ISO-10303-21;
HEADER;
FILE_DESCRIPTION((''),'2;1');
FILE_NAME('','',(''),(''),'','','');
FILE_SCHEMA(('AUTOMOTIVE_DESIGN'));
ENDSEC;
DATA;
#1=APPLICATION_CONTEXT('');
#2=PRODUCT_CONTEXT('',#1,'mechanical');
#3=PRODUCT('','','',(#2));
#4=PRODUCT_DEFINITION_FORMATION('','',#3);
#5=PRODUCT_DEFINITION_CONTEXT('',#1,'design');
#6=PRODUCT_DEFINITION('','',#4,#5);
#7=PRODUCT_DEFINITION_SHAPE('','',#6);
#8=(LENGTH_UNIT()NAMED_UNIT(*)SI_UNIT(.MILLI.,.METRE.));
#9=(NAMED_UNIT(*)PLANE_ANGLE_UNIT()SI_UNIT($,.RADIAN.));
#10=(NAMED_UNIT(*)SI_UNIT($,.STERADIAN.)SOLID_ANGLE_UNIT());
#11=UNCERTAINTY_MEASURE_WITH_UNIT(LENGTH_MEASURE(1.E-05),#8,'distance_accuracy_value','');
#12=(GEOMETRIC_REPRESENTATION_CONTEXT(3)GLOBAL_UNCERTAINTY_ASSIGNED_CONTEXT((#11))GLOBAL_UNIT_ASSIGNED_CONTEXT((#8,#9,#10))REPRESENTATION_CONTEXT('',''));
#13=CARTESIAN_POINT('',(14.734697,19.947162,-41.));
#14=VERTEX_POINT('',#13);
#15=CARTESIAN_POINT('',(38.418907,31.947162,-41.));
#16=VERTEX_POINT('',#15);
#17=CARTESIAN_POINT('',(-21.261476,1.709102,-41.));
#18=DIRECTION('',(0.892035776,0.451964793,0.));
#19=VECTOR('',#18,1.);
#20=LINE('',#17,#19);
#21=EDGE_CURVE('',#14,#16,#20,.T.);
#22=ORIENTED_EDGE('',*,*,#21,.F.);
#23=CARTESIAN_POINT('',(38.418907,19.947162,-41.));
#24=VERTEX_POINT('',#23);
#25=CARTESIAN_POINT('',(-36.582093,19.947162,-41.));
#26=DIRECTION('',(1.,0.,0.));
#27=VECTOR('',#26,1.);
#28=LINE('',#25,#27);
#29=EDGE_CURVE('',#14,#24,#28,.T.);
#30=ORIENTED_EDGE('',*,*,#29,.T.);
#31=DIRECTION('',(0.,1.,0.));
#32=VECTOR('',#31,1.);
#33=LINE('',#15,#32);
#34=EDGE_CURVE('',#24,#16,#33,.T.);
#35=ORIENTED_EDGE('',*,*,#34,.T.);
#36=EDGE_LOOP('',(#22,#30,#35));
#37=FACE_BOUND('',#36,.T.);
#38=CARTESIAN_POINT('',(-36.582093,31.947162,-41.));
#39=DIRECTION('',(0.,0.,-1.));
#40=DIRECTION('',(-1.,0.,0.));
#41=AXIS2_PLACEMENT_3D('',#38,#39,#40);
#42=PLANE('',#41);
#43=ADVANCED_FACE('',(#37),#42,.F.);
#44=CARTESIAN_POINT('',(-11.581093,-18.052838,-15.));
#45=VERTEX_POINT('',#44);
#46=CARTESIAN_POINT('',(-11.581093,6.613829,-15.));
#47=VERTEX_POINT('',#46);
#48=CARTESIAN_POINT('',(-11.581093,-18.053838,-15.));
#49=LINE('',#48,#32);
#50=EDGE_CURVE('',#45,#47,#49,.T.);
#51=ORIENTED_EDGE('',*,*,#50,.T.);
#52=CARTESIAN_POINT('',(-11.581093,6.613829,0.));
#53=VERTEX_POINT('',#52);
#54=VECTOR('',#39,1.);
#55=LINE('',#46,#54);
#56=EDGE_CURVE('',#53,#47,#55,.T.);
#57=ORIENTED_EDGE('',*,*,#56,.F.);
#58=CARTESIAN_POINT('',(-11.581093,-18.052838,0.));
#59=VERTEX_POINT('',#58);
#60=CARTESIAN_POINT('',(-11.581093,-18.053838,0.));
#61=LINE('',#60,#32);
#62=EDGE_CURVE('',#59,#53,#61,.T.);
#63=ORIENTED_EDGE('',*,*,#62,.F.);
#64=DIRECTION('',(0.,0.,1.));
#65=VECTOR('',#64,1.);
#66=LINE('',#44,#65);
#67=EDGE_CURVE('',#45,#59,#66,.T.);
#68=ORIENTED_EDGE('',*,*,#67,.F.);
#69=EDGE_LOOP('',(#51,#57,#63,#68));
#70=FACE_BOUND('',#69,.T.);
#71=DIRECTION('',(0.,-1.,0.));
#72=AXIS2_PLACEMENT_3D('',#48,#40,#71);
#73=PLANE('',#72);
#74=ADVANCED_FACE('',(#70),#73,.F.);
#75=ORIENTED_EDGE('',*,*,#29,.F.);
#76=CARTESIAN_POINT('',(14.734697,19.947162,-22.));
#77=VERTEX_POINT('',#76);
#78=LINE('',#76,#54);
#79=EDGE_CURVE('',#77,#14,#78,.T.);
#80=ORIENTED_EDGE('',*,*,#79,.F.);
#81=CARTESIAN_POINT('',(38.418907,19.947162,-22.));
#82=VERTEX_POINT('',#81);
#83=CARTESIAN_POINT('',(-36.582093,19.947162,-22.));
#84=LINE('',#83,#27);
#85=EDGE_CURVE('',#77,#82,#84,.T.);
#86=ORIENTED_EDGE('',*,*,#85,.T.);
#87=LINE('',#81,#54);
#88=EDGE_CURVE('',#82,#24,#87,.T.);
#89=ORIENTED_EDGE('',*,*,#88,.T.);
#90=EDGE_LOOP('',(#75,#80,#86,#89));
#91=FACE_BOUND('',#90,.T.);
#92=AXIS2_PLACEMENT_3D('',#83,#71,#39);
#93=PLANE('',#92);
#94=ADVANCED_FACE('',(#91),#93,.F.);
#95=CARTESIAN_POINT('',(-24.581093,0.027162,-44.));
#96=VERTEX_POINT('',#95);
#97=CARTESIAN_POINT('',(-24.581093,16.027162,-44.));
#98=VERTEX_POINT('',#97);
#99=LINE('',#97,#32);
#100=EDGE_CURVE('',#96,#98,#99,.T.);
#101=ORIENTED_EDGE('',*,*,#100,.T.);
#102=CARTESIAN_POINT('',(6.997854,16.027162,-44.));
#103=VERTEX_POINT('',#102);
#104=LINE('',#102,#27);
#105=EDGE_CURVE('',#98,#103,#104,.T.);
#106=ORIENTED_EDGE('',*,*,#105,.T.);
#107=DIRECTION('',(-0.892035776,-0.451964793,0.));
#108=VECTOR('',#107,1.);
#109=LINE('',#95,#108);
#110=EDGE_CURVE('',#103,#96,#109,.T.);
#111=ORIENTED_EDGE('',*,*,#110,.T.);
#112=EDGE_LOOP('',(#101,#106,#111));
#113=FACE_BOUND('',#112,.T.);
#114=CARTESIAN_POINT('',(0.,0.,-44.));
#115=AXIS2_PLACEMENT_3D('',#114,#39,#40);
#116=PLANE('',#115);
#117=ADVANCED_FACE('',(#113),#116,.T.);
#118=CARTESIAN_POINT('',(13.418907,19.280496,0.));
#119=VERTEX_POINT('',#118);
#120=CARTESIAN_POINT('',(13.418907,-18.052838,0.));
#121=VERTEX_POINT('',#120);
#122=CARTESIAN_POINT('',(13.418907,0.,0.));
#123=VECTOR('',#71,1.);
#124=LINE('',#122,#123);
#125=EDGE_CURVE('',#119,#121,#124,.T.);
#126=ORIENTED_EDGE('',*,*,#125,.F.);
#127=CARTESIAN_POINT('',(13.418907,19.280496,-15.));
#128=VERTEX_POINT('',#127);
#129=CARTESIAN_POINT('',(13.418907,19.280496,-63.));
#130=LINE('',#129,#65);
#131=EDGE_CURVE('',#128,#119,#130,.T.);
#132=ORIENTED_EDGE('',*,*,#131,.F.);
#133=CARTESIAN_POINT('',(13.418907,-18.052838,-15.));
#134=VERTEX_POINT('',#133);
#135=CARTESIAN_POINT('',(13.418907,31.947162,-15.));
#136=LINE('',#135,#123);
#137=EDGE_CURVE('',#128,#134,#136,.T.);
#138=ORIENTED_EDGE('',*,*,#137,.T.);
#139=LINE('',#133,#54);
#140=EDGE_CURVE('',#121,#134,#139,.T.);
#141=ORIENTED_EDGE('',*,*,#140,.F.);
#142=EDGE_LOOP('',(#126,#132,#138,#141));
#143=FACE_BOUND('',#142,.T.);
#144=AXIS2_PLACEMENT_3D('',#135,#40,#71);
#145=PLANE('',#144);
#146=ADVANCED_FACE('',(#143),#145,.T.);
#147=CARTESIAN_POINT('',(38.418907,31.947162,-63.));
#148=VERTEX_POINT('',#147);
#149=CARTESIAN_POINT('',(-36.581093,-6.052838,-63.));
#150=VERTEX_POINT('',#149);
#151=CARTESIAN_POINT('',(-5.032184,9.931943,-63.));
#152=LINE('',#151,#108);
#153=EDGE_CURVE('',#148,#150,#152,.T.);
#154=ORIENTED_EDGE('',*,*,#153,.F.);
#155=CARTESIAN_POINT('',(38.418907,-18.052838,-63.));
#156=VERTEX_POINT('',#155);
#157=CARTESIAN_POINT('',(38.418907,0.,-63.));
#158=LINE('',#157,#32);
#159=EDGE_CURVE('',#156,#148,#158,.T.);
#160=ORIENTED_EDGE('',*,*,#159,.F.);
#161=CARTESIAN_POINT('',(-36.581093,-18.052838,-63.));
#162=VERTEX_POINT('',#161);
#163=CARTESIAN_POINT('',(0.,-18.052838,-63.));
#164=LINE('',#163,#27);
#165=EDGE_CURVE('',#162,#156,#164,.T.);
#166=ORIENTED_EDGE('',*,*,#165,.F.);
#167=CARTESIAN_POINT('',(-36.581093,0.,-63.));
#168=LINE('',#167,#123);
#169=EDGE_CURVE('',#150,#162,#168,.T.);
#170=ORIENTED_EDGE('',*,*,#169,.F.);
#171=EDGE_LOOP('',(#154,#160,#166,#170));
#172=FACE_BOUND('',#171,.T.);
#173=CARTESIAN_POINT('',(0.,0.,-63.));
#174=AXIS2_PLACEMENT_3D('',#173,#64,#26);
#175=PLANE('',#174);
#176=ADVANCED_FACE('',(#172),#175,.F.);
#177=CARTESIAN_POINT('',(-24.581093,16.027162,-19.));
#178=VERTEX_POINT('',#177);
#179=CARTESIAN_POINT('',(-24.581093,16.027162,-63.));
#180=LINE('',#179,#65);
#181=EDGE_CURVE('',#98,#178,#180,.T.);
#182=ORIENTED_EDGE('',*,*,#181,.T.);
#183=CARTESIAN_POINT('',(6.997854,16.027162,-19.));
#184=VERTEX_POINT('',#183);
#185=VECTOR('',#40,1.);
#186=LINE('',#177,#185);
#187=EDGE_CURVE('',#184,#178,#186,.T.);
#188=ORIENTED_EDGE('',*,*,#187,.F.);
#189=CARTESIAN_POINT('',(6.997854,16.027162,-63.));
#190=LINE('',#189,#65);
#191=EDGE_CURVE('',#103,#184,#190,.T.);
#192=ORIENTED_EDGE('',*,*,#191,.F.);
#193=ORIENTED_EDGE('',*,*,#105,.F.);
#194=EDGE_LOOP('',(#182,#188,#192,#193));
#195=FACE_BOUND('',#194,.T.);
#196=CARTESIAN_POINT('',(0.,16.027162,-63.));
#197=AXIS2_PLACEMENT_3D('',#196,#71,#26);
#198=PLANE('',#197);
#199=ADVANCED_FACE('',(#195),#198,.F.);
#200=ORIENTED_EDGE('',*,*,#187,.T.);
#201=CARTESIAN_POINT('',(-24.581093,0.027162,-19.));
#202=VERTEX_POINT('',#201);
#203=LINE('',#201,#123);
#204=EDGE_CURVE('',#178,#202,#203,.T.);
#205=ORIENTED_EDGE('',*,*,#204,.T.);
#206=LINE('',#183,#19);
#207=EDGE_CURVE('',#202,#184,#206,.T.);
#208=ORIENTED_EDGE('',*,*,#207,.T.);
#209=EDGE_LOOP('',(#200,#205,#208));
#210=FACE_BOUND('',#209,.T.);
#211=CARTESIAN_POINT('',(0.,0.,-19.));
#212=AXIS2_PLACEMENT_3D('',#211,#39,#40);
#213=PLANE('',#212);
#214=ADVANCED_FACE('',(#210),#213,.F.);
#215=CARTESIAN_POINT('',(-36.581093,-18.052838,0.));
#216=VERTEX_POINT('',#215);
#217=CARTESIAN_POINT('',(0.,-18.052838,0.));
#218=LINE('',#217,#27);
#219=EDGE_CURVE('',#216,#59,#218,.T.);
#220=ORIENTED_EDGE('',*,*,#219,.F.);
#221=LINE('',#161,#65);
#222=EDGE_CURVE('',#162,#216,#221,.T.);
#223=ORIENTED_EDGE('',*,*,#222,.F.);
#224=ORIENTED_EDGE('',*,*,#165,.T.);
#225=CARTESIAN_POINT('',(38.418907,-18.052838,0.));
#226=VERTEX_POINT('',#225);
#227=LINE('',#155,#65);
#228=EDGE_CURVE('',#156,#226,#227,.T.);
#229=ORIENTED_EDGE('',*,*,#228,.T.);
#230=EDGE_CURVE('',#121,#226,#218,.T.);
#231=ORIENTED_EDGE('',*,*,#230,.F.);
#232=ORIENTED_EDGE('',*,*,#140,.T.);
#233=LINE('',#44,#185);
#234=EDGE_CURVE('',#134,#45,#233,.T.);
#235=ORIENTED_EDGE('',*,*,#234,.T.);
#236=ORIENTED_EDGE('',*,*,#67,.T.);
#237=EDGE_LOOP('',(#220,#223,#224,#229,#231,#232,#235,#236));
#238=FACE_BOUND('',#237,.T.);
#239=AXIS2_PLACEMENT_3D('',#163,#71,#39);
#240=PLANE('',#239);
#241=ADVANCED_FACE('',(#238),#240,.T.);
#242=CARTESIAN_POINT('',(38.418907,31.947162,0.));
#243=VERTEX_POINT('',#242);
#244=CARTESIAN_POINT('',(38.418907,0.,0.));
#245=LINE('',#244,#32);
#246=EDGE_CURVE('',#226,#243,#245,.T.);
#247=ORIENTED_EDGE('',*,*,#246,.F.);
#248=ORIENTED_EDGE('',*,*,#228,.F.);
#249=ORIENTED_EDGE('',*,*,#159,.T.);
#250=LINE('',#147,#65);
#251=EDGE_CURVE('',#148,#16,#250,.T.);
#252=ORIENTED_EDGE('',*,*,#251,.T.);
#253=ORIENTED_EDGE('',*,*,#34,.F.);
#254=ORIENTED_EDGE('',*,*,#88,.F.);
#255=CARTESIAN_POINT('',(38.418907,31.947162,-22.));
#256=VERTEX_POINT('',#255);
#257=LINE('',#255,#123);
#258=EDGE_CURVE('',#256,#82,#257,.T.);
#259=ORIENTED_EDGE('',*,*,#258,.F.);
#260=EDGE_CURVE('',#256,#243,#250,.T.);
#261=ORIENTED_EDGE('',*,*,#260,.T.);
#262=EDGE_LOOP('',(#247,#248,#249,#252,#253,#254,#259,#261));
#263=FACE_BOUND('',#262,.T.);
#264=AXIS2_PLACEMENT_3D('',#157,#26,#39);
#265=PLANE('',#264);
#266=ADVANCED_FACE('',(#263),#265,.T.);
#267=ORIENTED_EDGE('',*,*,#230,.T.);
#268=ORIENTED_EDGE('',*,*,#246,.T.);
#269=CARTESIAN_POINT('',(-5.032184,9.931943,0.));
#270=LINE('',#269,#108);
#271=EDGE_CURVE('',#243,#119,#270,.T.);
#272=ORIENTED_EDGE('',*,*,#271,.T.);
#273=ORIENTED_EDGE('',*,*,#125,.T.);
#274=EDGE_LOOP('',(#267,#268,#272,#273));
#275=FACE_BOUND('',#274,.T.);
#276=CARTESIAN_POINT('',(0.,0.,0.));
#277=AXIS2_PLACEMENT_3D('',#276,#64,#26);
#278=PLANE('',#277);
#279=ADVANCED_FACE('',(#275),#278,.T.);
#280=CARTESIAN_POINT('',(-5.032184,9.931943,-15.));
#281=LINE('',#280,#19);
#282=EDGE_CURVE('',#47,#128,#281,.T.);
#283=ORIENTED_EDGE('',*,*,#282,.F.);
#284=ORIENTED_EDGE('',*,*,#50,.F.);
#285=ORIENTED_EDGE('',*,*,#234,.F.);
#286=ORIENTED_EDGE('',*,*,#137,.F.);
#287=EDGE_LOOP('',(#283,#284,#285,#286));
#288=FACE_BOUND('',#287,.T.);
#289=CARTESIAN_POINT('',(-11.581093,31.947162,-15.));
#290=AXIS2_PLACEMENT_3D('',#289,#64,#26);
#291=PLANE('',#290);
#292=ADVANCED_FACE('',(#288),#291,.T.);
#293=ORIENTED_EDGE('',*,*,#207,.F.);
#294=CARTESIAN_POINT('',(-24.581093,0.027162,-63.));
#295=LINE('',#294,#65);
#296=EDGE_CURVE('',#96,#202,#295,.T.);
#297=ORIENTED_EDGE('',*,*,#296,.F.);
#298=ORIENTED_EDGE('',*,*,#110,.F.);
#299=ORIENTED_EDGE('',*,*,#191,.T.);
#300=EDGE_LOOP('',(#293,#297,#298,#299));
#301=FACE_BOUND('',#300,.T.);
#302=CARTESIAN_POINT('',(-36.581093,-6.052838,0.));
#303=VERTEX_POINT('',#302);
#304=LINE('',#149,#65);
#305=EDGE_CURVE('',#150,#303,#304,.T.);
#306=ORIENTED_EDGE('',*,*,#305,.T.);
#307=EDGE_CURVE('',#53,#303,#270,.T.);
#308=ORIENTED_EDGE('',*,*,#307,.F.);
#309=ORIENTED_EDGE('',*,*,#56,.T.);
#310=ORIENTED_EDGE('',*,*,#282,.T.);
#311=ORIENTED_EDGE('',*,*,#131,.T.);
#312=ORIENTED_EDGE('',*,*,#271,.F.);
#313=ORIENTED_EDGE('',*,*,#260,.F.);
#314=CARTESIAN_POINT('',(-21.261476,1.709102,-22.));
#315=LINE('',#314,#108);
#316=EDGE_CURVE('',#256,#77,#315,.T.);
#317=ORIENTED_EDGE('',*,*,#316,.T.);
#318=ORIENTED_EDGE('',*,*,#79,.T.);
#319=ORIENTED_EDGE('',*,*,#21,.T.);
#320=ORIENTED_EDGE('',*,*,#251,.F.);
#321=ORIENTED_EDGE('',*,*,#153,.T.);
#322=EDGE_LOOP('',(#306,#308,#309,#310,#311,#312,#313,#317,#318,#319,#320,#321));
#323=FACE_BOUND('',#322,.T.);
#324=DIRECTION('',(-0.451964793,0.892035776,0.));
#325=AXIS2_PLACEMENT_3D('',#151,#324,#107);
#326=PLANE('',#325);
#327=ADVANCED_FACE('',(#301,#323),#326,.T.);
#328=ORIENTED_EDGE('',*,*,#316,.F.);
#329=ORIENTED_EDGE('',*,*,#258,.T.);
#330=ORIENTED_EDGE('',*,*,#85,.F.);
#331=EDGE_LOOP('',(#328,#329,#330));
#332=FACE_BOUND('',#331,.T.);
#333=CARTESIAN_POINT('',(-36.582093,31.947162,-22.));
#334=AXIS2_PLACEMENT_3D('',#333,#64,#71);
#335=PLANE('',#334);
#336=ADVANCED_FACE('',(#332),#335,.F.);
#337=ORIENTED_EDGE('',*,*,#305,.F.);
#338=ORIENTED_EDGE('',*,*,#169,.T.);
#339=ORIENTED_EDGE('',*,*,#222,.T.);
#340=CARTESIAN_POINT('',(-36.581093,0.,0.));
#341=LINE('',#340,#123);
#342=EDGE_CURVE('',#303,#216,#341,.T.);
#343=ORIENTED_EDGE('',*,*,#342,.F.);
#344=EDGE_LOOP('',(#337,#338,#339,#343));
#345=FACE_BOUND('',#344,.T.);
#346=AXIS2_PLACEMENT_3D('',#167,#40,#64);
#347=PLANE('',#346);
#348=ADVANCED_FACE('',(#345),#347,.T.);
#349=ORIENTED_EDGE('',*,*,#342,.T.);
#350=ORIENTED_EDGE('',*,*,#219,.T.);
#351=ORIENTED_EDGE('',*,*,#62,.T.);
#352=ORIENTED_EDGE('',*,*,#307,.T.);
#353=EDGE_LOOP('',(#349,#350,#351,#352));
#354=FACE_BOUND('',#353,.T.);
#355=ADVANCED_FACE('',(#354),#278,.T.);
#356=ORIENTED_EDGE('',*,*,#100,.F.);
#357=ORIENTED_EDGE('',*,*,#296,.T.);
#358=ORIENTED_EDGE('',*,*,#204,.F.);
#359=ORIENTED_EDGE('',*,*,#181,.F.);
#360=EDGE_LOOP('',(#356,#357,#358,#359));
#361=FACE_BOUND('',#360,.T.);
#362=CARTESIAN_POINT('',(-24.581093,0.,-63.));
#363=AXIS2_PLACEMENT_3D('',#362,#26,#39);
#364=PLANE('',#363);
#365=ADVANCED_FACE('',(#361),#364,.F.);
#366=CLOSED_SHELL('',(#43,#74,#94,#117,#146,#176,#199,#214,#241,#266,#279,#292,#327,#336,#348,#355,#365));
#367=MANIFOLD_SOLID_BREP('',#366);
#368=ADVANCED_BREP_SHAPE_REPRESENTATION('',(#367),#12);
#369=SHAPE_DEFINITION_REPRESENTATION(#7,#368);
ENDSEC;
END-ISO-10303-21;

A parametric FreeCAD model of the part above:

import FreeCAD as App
import Part
import Sketcher
from FreeCAD import Vector
Q = App.Units.Quantity


def add_polygon(sketch, points):
    """Adds a closed chain of lines whose ends are joined by coincident constraints."""
    first, n = sketch.GeometryCount, len(points)
    for a, b in zip(points, points[1:] + points[:1]):
        sketch.addGeometry(Part.LineSegment(App.Vector(*a, 0), App.Vector(*b, 0)), False)
    for i in range(n):
        sketch.addConstraint(Sketcher.Constraint("Coincident", first + i, 2, first + (i + 1) % n, 1))

doc = App.newDocument("Part")
params = doc.addObject("Spreadsheet::Sheet", "Params")
for row, (alias, value) in enumerate([
    ("sketch1_width", "75 mm"),
    ("sketch1_height", "16 mm"),
    ("sketch1_height2", "12 mm"),
    ("sketch1_height3", "50 mm"),
    ("pad1_length", "63 mm"),
    ("sketch2_height", "16 mm"),
    ("pocket1_length", "19 mm"),
    ("sketch3_height", "16 mm"),
    ("pocket2_length", "19 mm"),
    ("sketch4_width", "25 mm"),
    ("sketch4_height", "15 mm"),
    ("pocket3_length", "34.08 mm"),
    ("sketch5_width", "25 mm"),
    ("sketch5_height", "15 mm"),
    ("pocket4_length", "16.92 mm"),
    ("sketch6_width", "12 mm"),
    ("sketch6_height", "19 mm"),
], start=1):
    params.set(f"A{row}", alias)
    params.set(f"B{row}", "=" + value)
    params.setAlias(f"B{row}", alias)

body = doc.addObject("PartDesign::Body", "Body")

sketch1 = body.newObject("Sketcher::SketchObject", "Sketch")
sketch1.AttachmentSupport = (doc.getObject("XY_Plane"), [""])
sketch1.MapMode = "FlatFace"
add_polygon(sketch1, [(38, 32), (7, 16), (-25, 16), (-25, 0), (-37, -6), (-37, -18), (38, -18)])
sketch1.addConstraint(Sketcher.Constraint("Horizontal", 1))
sketch1.addConstraint(Sketcher.Constraint("Vertical", 2))
sketch1.addConstraint(Sketcher.Constraint("Vertical", 4))
sketch1.addConstraint(Sketcher.Constraint("Horizontal", 5))
sketch1.addConstraint(Sketcher.Constraint("Vertical", 6))
sketch1.addConstraint(Sketcher.Constraint("Parallel", 0, 3))
sketch1.addConstraint(Sketcher.Constraint("DistanceX", 5, 1, 5, 2, Q("75 mm")))
sketch1.addConstraint(Sketcher.Constraint("DistanceY", 2, 2, 2, 1, Q("16 mm")))
sketch1.addConstraint(Sketcher.Constraint("DistanceY", 4, 2, 4, 1, Q("12 mm")))
sketch1.addConstraint(Sketcher.Constraint("DistanceY", 6, 1, 6, 2, Q("50 mm")))
sketch1.addConstraint(Sketcher.Constraint("DistanceX", 3, 2, 2, 2, Q("12 mm")))
sketch1.addConstraint(Sketcher.Constraint("DistanceY", 3, 2, 2, 2, Q("6.08 mm")))
sketch1.addConstraint(Sketcher.Constraint("DistanceX", -1, 1, 0, 2, Q("6.997854 mm")))
sketch1.addConstraint(Sketcher.Constraint("DistanceY", -1, 1, 0, 2, Q("16.027162 mm")))
sketch1.setExpression("Constraints[13]", "Params.sketch1_width")
sketch1.setExpression("Constraints[14]", "Params.sketch1_height")
sketch1.setExpression("Constraints[15]", "Params.sketch1_height2")
sketch1.setExpression("Constraints[16]", "Params.sketch1_height3")
pad1 = body.newObject("PartDesign::Pad", "Pad")
pad1.Profile = sketch1
pad1.setExpression("Length", "Params.pad1_length")
pad1.Reversed = True

sketch2 = body.newObject("Sketcher::SketchObject", "Sketch001")
sketch2.AttachmentSupport = (doc.getObject("XY_Plane"), [""])
sketch2.MapMode = "FlatFace"
add_polygon(sketch2, [(7, 16), (-25, 16), (-25, 0)])
sketch2.addConstraint(Sketcher.Constraint("Horizontal", 0))
sketch2.addConstraint(Sketcher.Constraint("Vertical", 1))
sketch2.addConstraint(Sketcher.Constraint("DistanceY", 1, 2, 1, 1, Q("16 mm")))
sketch2.addConstraint(Sketcher.Constraint("DistanceX", 0, 2, 0, 1, Q("31.578947 mm")))
sketch2.addConstraint(Sketcher.Constraint("DistanceX", 0, 2, -1, 1, Q("24.581093 mm")))
sketch2.addConstraint(Sketcher.Constraint("DistanceY", -1, 1, 0, 2, Q("16.027162 mm")))
sketch2.setExpression("Constraints[5]", "Params.sketch2_height")
pocket1 = body.newObject("PartDesign::Pocket", "Pocket")
pocket1.Profile = sketch2
pocket1.setExpression("Length", "Params.pocket1_length")

sketch3 = body.newObject("Sketcher::SketchObject", "Sketch002")
sketch3.AttachmentSupport = (doc.getObject("XY_Plane"), [""])
sketch3.MapMode = "FlatFace"
sketch3.AttachmentOffset = App.Placement(Vector(0, 0, -63), App.Rotation())
add_polygon(sketch3, [(-25, 16), (7, 16), (-25, 0)])
sketch3.addConstraint(Sketcher.Constraint("Horizontal", 0))
sketch3.addConstraint(Sketcher.Constraint("Vertical", 2))
sketch3.addConstraint(Sketcher.Constraint("DistanceY", 2, 1, 2, 2, Q("16 mm")))
sketch3.addConstraint(Sketcher.Constraint("DistanceX", 0, 1, 0, 2, Q("31.578947 mm")))
sketch3.addConstraint(Sketcher.Constraint("DistanceX", -1, 1, 0, 2, Q("6.997854 mm")))
sketch3.addConstraint(Sketcher.Constraint("DistanceY", -1, 1, 0, 2, Q("16.027162 mm")))
sketch3.setExpression("Constraints[5]", "Params.sketch3_height")
pocket2 = body.newObject("PartDesign::Pocket", "Pocket001")
pocket2.Profile = sketch3
pocket2.setExpression("Length", "Params.pocket2_length")
pocket2.Reversed = True

sketch4 = body.newObject("Sketcher::SketchObject", "Sketch003")
sketch4.AttachmentSupport = (doc.getObject("XZ_Plane"), [""])
sketch4.MapMode = "FlatFace"
sketch4.AttachmentOffset = App.Placement(Vector(0, 0, -16.027162), App.Rotation())
add_polygon(sketch4, [(13, -15), (-12, -15), (-12, 0), (13, 0)])
sketch4.addConstraint(Sketcher.Constraint("Horizontal", 0))
sketch4.addConstraint(Sketcher.Constraint("Vertical", 1))
sketch4.addConstraint(Sketcher.Constraint("Horizontal", 2))
sketch4.addConstraint(Sketcher.Constraint("Vertical", 3))
sketch4.addConstraint(Sketcher.Constraint("PointOnObject", 1, 2, -1))
sketch4.addConstraint(Sketcher.Constraint("DistanceX", 0, 2, 0, 1, Q("25 mm")))
sketch4.addConstraint(Sketcher.Constraint("DistanceY", 1, 1, 1, 2, Q("15 mm")))
sketch4.addConstraint(Sketcher.Constraint("DistanceX", 0, 2, -1, 1, Q("11.581093 mm")))
sketch4.setExpression("Constraints[9]", "Params.sketch4_width")
sketch4.setExpression("Constraints[10]", "Params.sketch4_height")
pocket3 = body.newObject("PartDesign::Pocket", "Pocket002")
pocket3.Profile = sketch4
pocket3.setExpression("Length", "Params.pocket3_length")
pocket3.Reversed = True

sketch5 = body.newObject("Sketcher::SketchObject", "Sketch004")
sketch5.AttachmentSupport = (doc.getObject("XZ_Plane"), [""])
sketch5.MapMode = "FlatFace"
sketch5.AttachmentOffset = App.Placement(Vector(0, 0, -16.027162), App.Rotation())
add_polygon(sketch5, [(13, -15), (-12, -15), (-12, 0), (13, 0)])
sketch5.addConstraint(Sketcher.Constraint("Horizontal", 0))
sketch5.addConstraint(Sketcher.Constraint("Vertical", 1))
sketch5.addConstraint(Sketcher.Constraint("Horizontal", 2))
sketch5.addConstraint(Sketcher.Constraint("Vertical", 3))
sketch5.addConstraint(Sketcher.Constraint("PointOnObject", 1, 2, -1))
sketch5.addConstraint(Sketcher.Constraint("DistanceX", 0, 2, 0, 1, Q("25 mm")))
sketch5.addConstraint(Sketcher.Constraint("DistanceY", 1, 1, 1, 2, Q("15 mm")))
sketch5.addConstraint(Sketcher.Constraint("DistanceX", 0, 2, -1, 1, Q("11.581093 mm")))
sketch5.setExpression("Constraints[9]", "Params.sketch5_width")
sketch5.setExpression("Constraints[10]", "Params.sketch5_height")
pocket4 = body.newObject("PartDesign::Pocket", "Pocket003")
pocket4.Profile = sketch5
pocket4.setExpression("Length", "Params.pocket4_length")

sketch6 = body.newObject("Sketcher::SketchObject", "Sketch005")
sketch6.AttachmentSupport = (doc.getObject("YZ_Plane"), [""])
sketch6.MapMode = "FlatFace"
sketch6.AttachmentOffset = App.Placement(Vector(0, 0, 38.418907), App.Rotation())
add_polygon(sketch6, [(32, -22), (20, -22), (20, -41), (32, -41)])
sketch6.addConstraint(Sketcher.Constraint("Horizontal", 0))
sketch6.addConstraint(Sketcher.Constraint("Vertical", 1))
sketch6.addConstraint(Sketcher.Constraint("Horizontal", 2))
sketch6.addConstraint(Sketcher.Constraint("Vertical", 3))
sketch6.addConstraint(Sketcher.Constraint("DistanceX", 0, 2, 0, 1, Q("12 mm")))
sketch6.addConstraint(Sketcher.Constraint("DistanceY", 1, 2, 1, 1, Q("19 mm")))
sketch6.addConstraint(Sketcher.Constraint("DistanceY", 0, 2, -1, 1, Q("22 mm")))
sketch6.addConstraint(Sketcher.Constraint("DistanceX", -1, 1, 0, 2, Q("19.947162 mm")))
sketch6.setExpression("Constraints[8]", "Params.sketch6_width")
sketch6.setExpression("Constraints[9]", "Params.sketch6_height")
pocket5 = body.newObject("PartDesign::Pocket", "Pocket004")
pocket5.Profile = sketch6
pocket5.Type = "UpToFirst"

doc.recompute()
